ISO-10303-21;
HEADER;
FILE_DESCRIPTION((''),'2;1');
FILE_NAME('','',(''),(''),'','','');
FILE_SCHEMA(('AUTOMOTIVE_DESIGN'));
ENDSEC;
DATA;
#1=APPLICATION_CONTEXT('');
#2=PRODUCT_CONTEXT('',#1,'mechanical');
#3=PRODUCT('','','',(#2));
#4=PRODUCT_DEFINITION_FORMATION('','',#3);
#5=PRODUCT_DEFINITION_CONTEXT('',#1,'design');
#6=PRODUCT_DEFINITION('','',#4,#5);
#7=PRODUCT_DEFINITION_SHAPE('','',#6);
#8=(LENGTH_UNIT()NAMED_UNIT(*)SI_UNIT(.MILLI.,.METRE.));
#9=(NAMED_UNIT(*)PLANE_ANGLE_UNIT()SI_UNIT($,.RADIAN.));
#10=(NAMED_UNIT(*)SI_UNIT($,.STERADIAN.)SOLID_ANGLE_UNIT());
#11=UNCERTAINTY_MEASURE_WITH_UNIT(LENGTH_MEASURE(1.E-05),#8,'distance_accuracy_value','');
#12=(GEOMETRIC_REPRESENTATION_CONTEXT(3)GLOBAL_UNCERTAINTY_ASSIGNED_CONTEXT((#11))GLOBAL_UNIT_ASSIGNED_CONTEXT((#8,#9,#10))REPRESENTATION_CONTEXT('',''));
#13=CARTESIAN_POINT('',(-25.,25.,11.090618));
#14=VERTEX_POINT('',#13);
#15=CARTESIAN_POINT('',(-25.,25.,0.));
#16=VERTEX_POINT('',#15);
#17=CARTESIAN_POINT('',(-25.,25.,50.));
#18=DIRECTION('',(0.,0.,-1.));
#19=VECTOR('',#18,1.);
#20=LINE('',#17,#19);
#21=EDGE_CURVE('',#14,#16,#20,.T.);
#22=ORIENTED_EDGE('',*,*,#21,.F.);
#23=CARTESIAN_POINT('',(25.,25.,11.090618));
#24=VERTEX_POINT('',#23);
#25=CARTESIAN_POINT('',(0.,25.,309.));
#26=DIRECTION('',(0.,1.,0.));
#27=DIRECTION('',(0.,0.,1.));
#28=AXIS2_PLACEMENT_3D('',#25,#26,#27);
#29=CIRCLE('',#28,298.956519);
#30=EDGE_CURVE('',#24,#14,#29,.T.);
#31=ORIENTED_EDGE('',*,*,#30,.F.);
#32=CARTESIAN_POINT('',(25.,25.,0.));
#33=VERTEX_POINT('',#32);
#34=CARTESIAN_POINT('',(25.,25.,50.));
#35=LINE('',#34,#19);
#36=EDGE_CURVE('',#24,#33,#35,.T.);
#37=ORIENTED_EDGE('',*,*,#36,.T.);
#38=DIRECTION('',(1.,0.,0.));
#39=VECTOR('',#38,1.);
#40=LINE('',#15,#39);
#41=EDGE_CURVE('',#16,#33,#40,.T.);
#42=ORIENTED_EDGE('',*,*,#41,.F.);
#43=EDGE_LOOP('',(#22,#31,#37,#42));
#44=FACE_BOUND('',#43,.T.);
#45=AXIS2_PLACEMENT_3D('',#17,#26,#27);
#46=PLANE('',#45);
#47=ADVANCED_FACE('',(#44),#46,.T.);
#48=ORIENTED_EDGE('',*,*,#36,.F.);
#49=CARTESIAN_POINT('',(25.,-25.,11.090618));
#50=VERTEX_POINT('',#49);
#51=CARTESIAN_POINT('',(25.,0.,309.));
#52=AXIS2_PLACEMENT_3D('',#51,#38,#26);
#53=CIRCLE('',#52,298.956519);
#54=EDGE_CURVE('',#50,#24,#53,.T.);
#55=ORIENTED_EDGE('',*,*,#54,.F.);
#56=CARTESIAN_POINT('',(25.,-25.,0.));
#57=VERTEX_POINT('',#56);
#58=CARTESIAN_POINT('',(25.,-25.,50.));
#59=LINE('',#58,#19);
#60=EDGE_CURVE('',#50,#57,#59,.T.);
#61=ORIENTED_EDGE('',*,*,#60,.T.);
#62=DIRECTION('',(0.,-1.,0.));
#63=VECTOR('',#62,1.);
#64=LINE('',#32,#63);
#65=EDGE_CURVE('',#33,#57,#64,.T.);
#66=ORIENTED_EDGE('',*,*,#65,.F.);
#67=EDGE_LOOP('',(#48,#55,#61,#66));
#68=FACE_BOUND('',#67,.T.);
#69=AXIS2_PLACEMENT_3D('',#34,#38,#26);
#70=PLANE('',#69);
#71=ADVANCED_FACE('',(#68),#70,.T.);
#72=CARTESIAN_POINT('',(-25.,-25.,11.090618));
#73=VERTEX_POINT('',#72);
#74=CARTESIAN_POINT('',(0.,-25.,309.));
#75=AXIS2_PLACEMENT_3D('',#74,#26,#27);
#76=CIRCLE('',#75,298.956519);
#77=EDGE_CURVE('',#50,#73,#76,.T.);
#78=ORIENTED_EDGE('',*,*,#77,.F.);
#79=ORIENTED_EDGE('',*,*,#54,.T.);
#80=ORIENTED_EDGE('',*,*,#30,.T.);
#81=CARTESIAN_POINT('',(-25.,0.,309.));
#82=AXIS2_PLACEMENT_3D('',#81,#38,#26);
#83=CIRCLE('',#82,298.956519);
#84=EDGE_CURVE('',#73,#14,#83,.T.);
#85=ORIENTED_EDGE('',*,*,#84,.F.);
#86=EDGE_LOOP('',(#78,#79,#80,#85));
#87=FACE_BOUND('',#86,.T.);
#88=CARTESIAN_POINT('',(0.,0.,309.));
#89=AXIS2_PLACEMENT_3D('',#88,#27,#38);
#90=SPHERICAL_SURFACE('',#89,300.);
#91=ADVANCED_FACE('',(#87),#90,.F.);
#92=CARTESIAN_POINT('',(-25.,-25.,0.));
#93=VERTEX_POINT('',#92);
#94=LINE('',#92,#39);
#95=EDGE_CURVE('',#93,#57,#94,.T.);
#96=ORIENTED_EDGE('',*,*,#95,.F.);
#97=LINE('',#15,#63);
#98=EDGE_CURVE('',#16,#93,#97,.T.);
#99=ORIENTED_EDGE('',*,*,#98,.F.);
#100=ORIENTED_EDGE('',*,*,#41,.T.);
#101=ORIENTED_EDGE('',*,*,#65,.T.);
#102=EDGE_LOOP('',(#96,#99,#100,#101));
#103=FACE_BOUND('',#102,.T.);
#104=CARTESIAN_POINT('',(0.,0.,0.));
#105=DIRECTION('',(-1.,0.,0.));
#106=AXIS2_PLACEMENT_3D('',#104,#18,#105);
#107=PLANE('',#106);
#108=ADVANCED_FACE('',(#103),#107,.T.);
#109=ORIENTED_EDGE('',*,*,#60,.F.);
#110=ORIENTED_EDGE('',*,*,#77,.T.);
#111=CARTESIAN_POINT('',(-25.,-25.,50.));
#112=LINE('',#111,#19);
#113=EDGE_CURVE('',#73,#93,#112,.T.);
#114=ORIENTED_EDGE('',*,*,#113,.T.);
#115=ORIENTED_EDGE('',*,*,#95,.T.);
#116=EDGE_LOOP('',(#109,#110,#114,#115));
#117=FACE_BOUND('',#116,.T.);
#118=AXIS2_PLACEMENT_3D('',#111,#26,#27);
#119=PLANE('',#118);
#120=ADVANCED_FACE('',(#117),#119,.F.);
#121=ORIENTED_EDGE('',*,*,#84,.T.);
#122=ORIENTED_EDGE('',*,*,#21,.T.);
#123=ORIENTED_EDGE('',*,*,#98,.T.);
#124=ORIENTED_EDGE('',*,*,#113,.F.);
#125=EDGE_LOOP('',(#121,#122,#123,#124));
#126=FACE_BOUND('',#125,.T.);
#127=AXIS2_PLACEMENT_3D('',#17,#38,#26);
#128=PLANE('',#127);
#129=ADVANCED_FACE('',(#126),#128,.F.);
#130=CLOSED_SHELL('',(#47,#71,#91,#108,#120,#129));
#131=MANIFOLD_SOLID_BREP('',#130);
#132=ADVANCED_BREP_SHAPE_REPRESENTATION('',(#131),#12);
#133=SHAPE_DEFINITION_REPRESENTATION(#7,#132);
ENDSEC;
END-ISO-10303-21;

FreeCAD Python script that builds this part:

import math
import FreeCAD as App
import Part
import Sketcher


def add_polygon(sketch, points):
    """Adds a closed chain of lines whose ends are joined by coincident constraints."""
    first, n = sketch.GeometryCount, len(points)
    for a, b in zip(points, points[1:] + points[:1]):
        sketch.addGeometry(Part.LineSegment(App.Vector(*a, 0), App.Vector(*b, 0)), False)
    for i in range(n):
        sketch.addConstraint(Sketcher.Constraint("Coincident", first + i, 2, first + (i + 1) % n, 1))

doc = App.newDocument("Part")
params = doc.addObject("Spreadsheet::Sheet", "Params")
for row, (alias, value) in enumerate([
    ("sketch1_width", "50 mm"),
    ("pad1_length", "50 mm"),
    ("sketch2_radius", "300 mm"),
    ("groove_angle", "360 deg"),
], start=1):
    params.set(f"A{row}", alias)
    params.set(f"B{row}", "=" + value)
    params.setAlias(f"B{row}", alias)

body = doc.addObject("PartDesign::Body", "Body")

# Sketch on XY plane
sketch1 = doc.addObject("Sketcher::SketchObject", "Sketch")
body.addObject(sketch1)
sketch1.AttachmentSupport = (doc.XY_Plane, [""])
sketch1.MapMode = "FlatFace"
add_polygon(sketch1, [(-25, 25), (-25, -25), (25, -25), (25, 25)])  # lines 0-3
sketch1.addConstraint([
    Sketcher.Constraint("Vertical", 0),
    Sketcher.Constraint("Horizontal", 1),
    Sketcher.Constraint("Vertical", 2),
    Sketcher.Constraint("Horizontal", 3),
    Sketcher.Constraint("Symmetric", 0, 2, 2, 2, -1, 1),
    Sketcher.Constraint("Equal", 3, 0),
    Sketcher.Constraint("DistanceX", 1, 1, 1, 2, 50.0),
])
sketch1.setExpression("Constraints[10]", "Params.sketch1_width")
pad1 = doc.addObject("PartDesign::Pad", "Pad")
body.addObject(pad1)
pad1.Profile = sketch1
pad1.setExpression("Length", "Params.pad1_length")

# Sketch on XZ plane
sketch2 = doc.addObject("Sketcher::SketchObject", "Sketch001")
body.addObject(sketch2)
sketch2.AttachmentSupport = (doc.XZ_Plane, [""])
sketch2.MapMode = "FlatFace"
sketch2.addGeometry([
    Part.LineSegment(App.Vector(0, 242, 0), App.Vector(292, 242, 0)),
    Part.ArcOfCircle(Part.Circle(App.Vector(0, 309, 0), App.Vector(0, 0, 1), 300), math.radians(-90), math.radians(-13)),
    Part.LineSegment(App.Vector(0, 9, 0), App.Vector(0, 242, 0)),
], False)
sketch2.addConstraint([
    Sketcher.Constraint("Coincident", 0, 2, 1, 2),
    Sketcher.Constraint("Coincident", 1, 1, 2, 1),
    Sketcher.Constraint("Coincident", 2, 2, 0, 1),
    Sketcher.Constraint("Horizontal", 0),
    Sketcher.Constraint("Vertical", 2),
    Sketcher.Constraint("PointOnObject", 1, 3, -2),
    Sketcher.Constraint("PointOnObject", 2, 2, -2),
    Sketcher.Constraint("Radius", 1, 300.0),
    Sketcher.Constraint("DistanceY", -1, 1, 1, 3, 309.0),
    Sketcher.Constraint("DistanceX", 0, 1, 0, 2, 292.453639),
])
sketch2.setExpression("Constraints[7]", "Params.sketch2_radius")
groove = doc.addObject("PartDesign::Groove", "Groove")
body.addObject(groove)
groove.Profile = sketch2
groove.ReferenceAxis = (sketch2, ["V_Axis"])
groove.setExpression("Angle", "Params.groove_angle")

doc.recompute()
